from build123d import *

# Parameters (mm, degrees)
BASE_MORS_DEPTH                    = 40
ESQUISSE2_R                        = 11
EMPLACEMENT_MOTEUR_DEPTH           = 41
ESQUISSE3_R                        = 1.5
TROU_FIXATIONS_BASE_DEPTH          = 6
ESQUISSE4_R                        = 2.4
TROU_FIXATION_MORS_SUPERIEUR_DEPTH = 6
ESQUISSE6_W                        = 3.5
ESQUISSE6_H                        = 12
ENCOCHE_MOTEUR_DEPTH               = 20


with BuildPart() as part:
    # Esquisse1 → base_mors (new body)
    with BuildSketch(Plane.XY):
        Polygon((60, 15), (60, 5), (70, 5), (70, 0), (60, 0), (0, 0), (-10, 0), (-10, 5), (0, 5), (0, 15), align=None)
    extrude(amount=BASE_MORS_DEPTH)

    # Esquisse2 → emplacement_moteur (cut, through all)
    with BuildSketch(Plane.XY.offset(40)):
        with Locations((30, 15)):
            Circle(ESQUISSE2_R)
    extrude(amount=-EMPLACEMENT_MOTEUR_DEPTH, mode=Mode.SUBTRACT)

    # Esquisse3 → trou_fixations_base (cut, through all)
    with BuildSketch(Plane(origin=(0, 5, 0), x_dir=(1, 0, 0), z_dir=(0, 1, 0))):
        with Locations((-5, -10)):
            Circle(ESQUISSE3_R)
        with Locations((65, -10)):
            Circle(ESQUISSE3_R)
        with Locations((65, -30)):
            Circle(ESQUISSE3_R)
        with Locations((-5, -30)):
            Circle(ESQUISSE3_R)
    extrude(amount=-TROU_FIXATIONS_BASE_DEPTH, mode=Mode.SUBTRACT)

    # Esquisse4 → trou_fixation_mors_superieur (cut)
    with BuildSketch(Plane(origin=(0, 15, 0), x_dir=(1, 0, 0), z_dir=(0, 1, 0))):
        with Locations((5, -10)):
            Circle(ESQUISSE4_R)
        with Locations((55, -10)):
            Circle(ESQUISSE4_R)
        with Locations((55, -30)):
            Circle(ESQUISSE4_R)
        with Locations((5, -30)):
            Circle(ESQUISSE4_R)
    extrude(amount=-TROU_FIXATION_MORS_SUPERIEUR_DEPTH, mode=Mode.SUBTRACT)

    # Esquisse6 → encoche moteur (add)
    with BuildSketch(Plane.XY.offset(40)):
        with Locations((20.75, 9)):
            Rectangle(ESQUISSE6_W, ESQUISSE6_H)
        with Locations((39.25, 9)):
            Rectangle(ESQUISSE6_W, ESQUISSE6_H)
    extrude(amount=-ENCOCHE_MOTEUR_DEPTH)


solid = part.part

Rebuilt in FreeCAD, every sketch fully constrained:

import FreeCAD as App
import Part
import Sketcher

doc = App.newDocument("Part")
params = doc.addObject("Spreadsheet::Sheet", "Params")
for row, (alias, value) in enumerate([
    ("sketch1_width", "60 mm"),
    ("sketch1_width2", "10 mm"),
    ("sketch1_height", "5 mm"),
    ("pad1_length", "40 mm"),
    ("sketch2_diameter", "22 mm"),
    ("sketch3_diameter", "3 mm"),
    ("sketch4_diameter", "4.8 mm"),
    ("pocket3_length", "6 mm"),
    ("sketch5_height", "12 mm"),
    ("sketch5_width", "3.5 mm"),
    ("pad2_length", "20 mm"),
], start=1):
    params.set(f"A{row}", alias)
    params.set(f"B{row}", "=" + value)
    params.setAlias(f"B{row}", alias)

body = doc.addObject("PartDesign::Body", "Body")

sketch1 = body.newObject("Sketcher::SketchObject", "Sketch")
sketch1.AttachmentSupport = (doc.getObject("XY_Plane"), [""])
sketch1.MapMode = "FlatFace"
sketch1.addGeometry(Part.LineSegment(App.Vector(60, 5, 0), App.Vector(60, 15, 0)), False)
sketch1.addGeometry(Part.LineSegment(App.Vector(60, 15, 0), App.Vector(0, 15, 0)), False)
sketch1.addGeometry(Part.LineSegment(App.Vector(0, 15, 0), App.Vector(0, 5, 0)), False)
sketch1.addGeometry(Part.LineSegment(App.Vector(0, 5, 0), App.Vector(-10, 5, 0)), False)
sketch1.addGeometry(Part.LineSegment(App.Vector(-10, 5, 0), App.Vector(-10, 0, 0)), False)
sketch1.addGeometry(Part.LineSegment(App.Vector(-10, 0, 0), App.Vector(70, 0, 0)), False)
sketch1.addGeometry(Part.LineSegment(App.Vector(70, 0, 0), App.Vector(70, 5, 0)), False)
sketch1.addGeometry(Part.LineSegment(App.Vector(70, 5, 0), App.Vector(60, 5, 0)), False)
sketch1.addConstraint(Sketcher.Constraint("Coincident", 0, 2, 1, 1))
sketch1.addConstraint(Sketcher.Constraint("Coincident", 1, 2, 2, 1))
sketch1.addConstraint(Sketcher.Constraint("Coincident", 2, 2, 3, 1))
sketch1.addConstraint(Sketcher.Constraint("Coincident", 3, 2, 4, 1))
sketch1.addConstraint(Sketcher.Constraint("Coincident", 4, 2, 5, 1))
sketch1.addConstraint(Sketcher.Constraint("Coincident", 5, 2, 6, 1))
sketch1.addConstraint(Sketcher.Constraint("Coincident", 6, 2, 7, 1))
sketch1.addConstraint(Sketcher.Constraint("Coincident", 7, 2, 0, 1))
sketch1.addConstraint(Sketcher.Constraint("Vertical", 0))
sketch1.addConstraint(Sketcher.Constraint("Horizontal", 1))
sketch1.addConstraint(Sketcher.Constraint("Vertical", 2))
sketch1.addConstraint(Sketcher.Constraint("Horizontal", 3))
sketch1.addConstraint(Sketcher.Constraint("Vertical", 4))
sketch1.addConstraint(Sketcher.Constraint("Horizontal", 5))
sketch1.addConstraint(Sketcher.Constraint("Vertical", 6))
sketch1.addConstraint(Sketcher.Constraint("Horizontal", 7))
sketch1.addConstraint(Sketcher.Constraint("PointOnObject", 1, 2, -2))
sketch1.addConstraint(Sketcher.Constraint("PointOnObject", 4, 2, -1))
sketch1.addConstraint(Sketcher.Constraint("Horizontal", 3, 2, 6, 2))
sketch1.addConstraint(Sketcher.Constraint("Equal", 3, 7))
sketch1.addConstraint(Sketcher.Constraint("Equal", 7, 0))
sketch1.addConstraint(Sketcher.Constraint("DistanceX", 1, 2, 1, 1, 60.0))
sketch1.addConstraint(Sketcher.Constraint("DistanceX", 3, 2, 3, 1, 10.0))
sketch1.addConstraint(Sketcher.Constraint("DistanceY", 4, 2, 4, 1, 5.0))
sketch1.setExpression("Constraints[21]", "Params.sketch1_width")
sketch1.setExpression("Constraints[22]", "Params.sketch1_width2")
sketch1.setExpression("Constraints[23]", "Params.sketch1_height")
pad1 = body.newObject("PartDesign::Pad", "Pad")
pad1.Profile = sketch1
pad1.setExpression("Length", "Params.pad1_length")

sketch2 = body.newObject("Sketcher::SketchObject", "Sketch001")
sketch2.AttachmentSupport = (doc.getObject("XY_Plane"), [""])
sketch2.MapMode = "FlatFace"
sketch2.AttachmentOffset = App.Placement(App.Vector(0, 0, 40), App.Rotation())
sketch2.addGeometry(Part.Circle(App.Vector(30, 15, 0), App.Vector(0, 0, 1), 11), False)
sketch2.addConstraint(Sketcher.Constraint("Diameter", 0, 22.0))
sketch2.addConstraint(Sketcher.Constraint("DistanceX", -1, 1, 0, 3, 30.0))
sketch2.addConstraint(Sketcher.Constraint("DistanceY", -1, 1, 0, 3, 15.0))
sketch2.setExpression("Constraints[0]", "Params.sketch2_diameter")
pocket1 = body.newObject("PartDesign::Pocket", "Pocket")
pocket1.Profile = sketch2
pocket1.Type = "ThroughAll"

sketch3 = body.newObject("Sketcher::SketchObject", "Sketch002")
sketch3.AttachmentSupport = (doc.getObject("XZ_Plane"), [""])
sketch3.MapMode = "FlatFace"
sketch3.AttachmentOffset = App.Placement(App.Vector(0, 0, -5), App.Rotation())
sketch3.addGeometry(Part.Circle(App.Vector(-5, 10, 0), App.Vector(0, 0, 1), 1.5), False)
sketch3.addGeometry(Part.Circle(App.Vector(65, 10, 0), App.Vector(0, 0, 1), 1.5), False)
sketch3.addGeometry(Part.Circle(App.Vector(65, 30, 0), App.Vector(0, 0, 1), 1.5), False)
sketch3.addGeometry(Part.Circle(App.Vector(-5, 30, 0), App.Vector(0, 0, 1), 1.5), False)
sketch3.addConstraint(Sketcher.Constraint("Equal", 0, 1))
sketch3.addConstraint(Sketcher.Constraint("Equal", 1, 2))
sketch3.addConstraint(Sketcher.Constraint("Equal", 2, 3))
sketch3.addConstraint(Sketcher.Constraint("Horizontal", 0, 3, 1, 3))
sketch3.addConstraint(Sketcher.Constraint("Horizontal", 2, 3, 3, 3))
sketch3.addConstraint(Sketcher.Constraint("Vertical", 1, 3, 2, 3))
sketch3.addConstraint(Sketcher.Constraint("Vertical", 0, 3, 3, 3))
sketch3.addConstraint(Sketcher.Constraint("Diameter", 0, 3.0))
sketch3.addConstraint(Sketcher.Constraint("DistanceX", 0, 3, -1, 1, 5.0))
sketch3.addConstraint(Sketcher.Constraint("DistanceY", -1, 1, 0, 3, 10.0))
sketch3.addConstraint(Sketcher.Constraint("DistanceX", -1, 1, 1, 3, 65.0))
sketch3.addConstraint(Sketcher.Constraint("DistanceY", -1, 1, 2, 3, 30.0))
sketch3.setExpression("Constraints[7]", "Params.sketch3_diameter")
pocket2 = body.newObject("PartDesign::Pocket", "Pocket001")
pocket2.Profile = sketch3
pocket2.Type = "ThroughAll"
pocket2.Reversed = True

sketch4 = body.newObject("Sketcher::SketchObject", "Sketch003")
sketch4.AttachmentSupport = (doc.getObject("XZ_Plane"), [""])
sketch4.MapMode = "FlatFace"
sketch4.AttachmentOffset = App.Placement(App.Vector(0, 0, -15), App.Rotation())
sketch4.addGeometry(Part.Circle(App.Vector(5, 10, 0), App.Vector(0, 0, 1), 2.4), False)
sketch4.addGeometry(Part.Circle(App.Vector(55, 10, 0), App.Vector(0, 0, 1), 2.4), False)
sketch4.addGeometry(Part.Circle(App.Vector(55, 30, 0), App.Vector(0, 0, 1), 2.4), False)
sketch4.addGeometry(Part.Circle(App.Vector(5, 30, 0), App.Vector(0, 0, 1), 2.4), False)
sketch4.addConstraint(Sketcher.Constraint("Equal", 0, 1))
sketch4.addConstraint(Sketcher.Constraint("Equal", 1, 2))
sketch4.addConstraint(Sketcher.Constraint("Equal", 2, 3))
sketch4.addConstraint(Sketcher.Constraint("Horizontal", 0, 3, 1, 3))
sketch4.addConstraint(Sketcher.Constraint("Horizontal", 2, 3, 3, 3))
sketch4.addConstraint(Sketcher.Constraint("Vertical", 1, 3, 2, 3))
sketch4.addConstraint(Sketcher.Constraint("Vertical", 0, 3, 3, 3))
sketch4.addConstraint(Sketcher.Constraint("Diameter", 0, 4.8))
sketch4.addConstraint(Sketcher.Constraint("DistanceX", -1, 1, 0, 3, 5.0))
sketch4.addConstraint(Sketcher.Constraint("DistanceY", -1, 1, 0, 3, 10.0))
sketch4.addConstraint(Sketcher.Constraint("DistanceX", -1, 1, 1, 3, 55.0))
sketch4.addConstraint(Sketcher.Constraint("DistanceY", -1, 1, 2, 3, 30.0))
sketch4.setExpression("Constraints[7]", "Params.sketch4_diameter")
pocket3 = body.newObject("PartDesign::Pocket", "Pocket002")
pocket3.Profile = sketch4
pocket3.setExpression("Length", "Params.pocket3_length")
pocket3.Reversed = True

sketch5 = body.newObject("Sketcher::SketchObject", "Sketch004")
sketch5.AttachmentSupport = (doc.getObject("XY_Plane"), [""])
sketch5.MapMode = "FlatFace"
sketch5.AttachmentOffset = App.Placement(App.Vector(0, 0, 40), App.Rotation())
sketch5.addGeometry(Part.LineSegment(App.Vector(19, 15, 0), App.Vector(19, 3, 0)), False)
sketch5.addGeometry(Part.LineSegment(App.Vector(19, 3, 0), App.Vector(22.5, 3, 0)), False)
sketch5.addGeometry(Part.LineSegment(App.Vector(22.5, 3, 0), App.Vector(22.5, 15, 0)), False)
sketch5.addGeometry(Part.LineSegment(App.Vector(22.5, 15, 0), App.Vector(19, 15, 0)), False)
sketch5.addGeometry(Part.LineSegment(App.Vector(37.5, 15, 0), App.Vector(37.5, 3, 0)), False)
sketch5.addGeometry(Part.LineSegment(App.Vector(37.5, 3, 0), App.Vector(41, 3, 0)), False)
sketch5.addGeometry(Part.LineSegment(App.Vector(41, 3, 0), App.Vector(41, 15, 0)), False)
sketch5.addGeometry(Part.LineSegment(App.Vector(41, 15, 0), App.Vector(37.5, 15, 0)), False)
sketch5.addConstraint(Sketcher.Constraint("Coincident", 0, 2, 1, 1))
sketch5.addConstraint(Sketcher.Constraint("Coincident", 1, 2, 2, 1))
sketch5.addConstraint(Sketcher.Constraint("Coincident", 2, 2, 3, 1))
sketch5.addConstraint(Sketcher.Constraint("Coincident", 3, 2, 0, 1))
sketch5.addConstraint(Sketcher.Constraint("Coincident", 4, 2, 5, 1))
sketch5.addConstraint(Sketcher.Constraint("Coincident", 5, 2, 6, 1))
sketch5.addConstraint(Sketcher.Constraint("Coincident", 6, 2, 7, 1))
sketch5.addConstraint(Sketcher.Constraint("Coincident", 7, 2, 4, 1))
sketch5.addConstraint(Sketcher.Constraint("Vertical", 0))
sketch5.addConstraint(Sketcher.Constraint("Horizontal", 1))
sketch5.addConstraint(Sketcher.Constraint("Vertical", 2))
sketch5.addConstraint(Sketcher.Constraint("Horizontal", 3))
sketch5.addConstraint(Sketcher.Constraint("Vertical", 4))
sketch5.addConstraint(Sketcher.Constraint("Horizontal", 5))
sketch5.addConstraint(Sketcher.Constraint("Vertical", 6))
sketch5.addConstraint(Sketcher.Constraint("Horizontal", 7))
sketch5.addConstraint(Sketcher.Constraint("Horizontal", 1, 2, 4, 2))
sketch5.addConstraint(Sketcher.Constraint("Horizontal", 3, 2, 6, 2))
sketch5.addConstraint(Sketcher.Constraint("Equal", 3, 5))
sketch5.addConstraint(Sketcher.Constraint("DistanceY", 0, 2, 0, 1, 12.0))
sketch5.addConstraint(Sketcher.Constraint("DistanceX", 1, 1, 1, 2, 3.5))
sketch5.addConstraint(Sketcher.Constraint("DistanceX", -1, 1, 0, 2, 19.0))
sketch5.addConstraint(Sketcher.Constraint("DistanceY", -1, 1, 0, 2, 3.0))
sketch5.addConstraint(Sketcher.Constraint("DistanceX", -1, 1, 5, 2, 41.0))
sketch5.setExpression("Constraints[19]", "Params.sketch5_height")
sketch5.setExpression("Constraints[20]", "Params.sketch5_width")
pad2 = body.newObject("PartDesign::Pad", "Pad001")
pad2.Profile = sketch5
pad2.setExpression("Length", "Params.pad2_length")
pad2.Reversed = True

doc.recompute()
